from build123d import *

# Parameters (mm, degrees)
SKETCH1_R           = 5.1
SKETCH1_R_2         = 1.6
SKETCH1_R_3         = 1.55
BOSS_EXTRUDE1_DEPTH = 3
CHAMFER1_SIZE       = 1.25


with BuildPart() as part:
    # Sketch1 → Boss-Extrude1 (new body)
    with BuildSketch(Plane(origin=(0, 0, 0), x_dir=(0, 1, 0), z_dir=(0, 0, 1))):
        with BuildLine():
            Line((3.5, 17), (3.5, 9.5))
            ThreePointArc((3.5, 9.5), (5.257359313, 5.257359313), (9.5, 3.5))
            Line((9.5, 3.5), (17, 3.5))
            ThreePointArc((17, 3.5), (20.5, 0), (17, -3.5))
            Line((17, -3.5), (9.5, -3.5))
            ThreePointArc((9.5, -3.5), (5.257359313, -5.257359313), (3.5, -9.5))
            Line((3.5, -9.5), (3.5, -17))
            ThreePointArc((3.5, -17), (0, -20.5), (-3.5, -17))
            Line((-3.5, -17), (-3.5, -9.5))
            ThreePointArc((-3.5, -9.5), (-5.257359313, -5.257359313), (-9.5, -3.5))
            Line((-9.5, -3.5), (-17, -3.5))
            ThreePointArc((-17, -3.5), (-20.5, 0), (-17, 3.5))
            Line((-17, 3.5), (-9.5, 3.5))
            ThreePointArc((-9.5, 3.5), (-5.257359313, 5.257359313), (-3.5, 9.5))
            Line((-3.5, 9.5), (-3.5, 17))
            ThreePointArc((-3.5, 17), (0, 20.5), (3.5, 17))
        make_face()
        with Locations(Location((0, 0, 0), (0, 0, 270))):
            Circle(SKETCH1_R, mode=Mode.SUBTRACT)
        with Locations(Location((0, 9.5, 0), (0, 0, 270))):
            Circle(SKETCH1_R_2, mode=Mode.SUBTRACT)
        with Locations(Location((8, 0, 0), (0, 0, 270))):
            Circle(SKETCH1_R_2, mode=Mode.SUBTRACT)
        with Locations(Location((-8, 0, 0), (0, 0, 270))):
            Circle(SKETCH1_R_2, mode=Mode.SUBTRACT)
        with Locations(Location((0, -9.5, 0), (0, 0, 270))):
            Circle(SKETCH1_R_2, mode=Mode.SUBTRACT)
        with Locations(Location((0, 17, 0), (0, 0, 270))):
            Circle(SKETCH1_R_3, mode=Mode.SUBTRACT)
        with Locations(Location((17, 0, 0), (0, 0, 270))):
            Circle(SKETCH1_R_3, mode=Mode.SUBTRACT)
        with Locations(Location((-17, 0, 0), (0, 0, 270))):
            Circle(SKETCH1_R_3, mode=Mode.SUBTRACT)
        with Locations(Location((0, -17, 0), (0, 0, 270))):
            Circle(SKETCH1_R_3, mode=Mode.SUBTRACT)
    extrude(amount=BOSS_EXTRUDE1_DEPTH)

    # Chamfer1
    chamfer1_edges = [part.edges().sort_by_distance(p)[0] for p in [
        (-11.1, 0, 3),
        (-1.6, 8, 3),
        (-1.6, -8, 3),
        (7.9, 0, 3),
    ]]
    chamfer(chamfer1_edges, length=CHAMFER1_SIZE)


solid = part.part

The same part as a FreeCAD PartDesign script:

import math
import FreeCAD as App
import Part
import Sketcher
from FreeCAD import Vector


def edges_at(feature, points):
    """Names of the edges that pass closest to the given points."""
    edges = feature.Shape.Edges
    near = lambda p: min(range(len(edges)), key=lambda i: edges[i].distToShape(Part.Vertex(*p))[0])
    return sorted({f"Edge{near(p) + 1}" for p in points})

doc = App.newDocument("Part")
params = doc.addObject("Spreadsheet::Sheet", "Params")
for row, (alias, value) in enumerate([
    ("sketch1_radius", "6 mm"),
    ("sketch1_diameter", "3.1 mm"),
    ("sketch1_diameter2", "3.2 mm"),
    ("sketch1_diameter3", "10.2 mm"),
    ("sketch1_radius2", "3.5 mm"),
    ("pad1_length", "3 mm"),
    ("chamfer_size", "1.25 mm"),
], start=1):
    params.set(f"A{row}", alias)
    params.set(f"B{row}", "=" + value)
    params.setAlias(f"B{row}", alias)

body = doc.addObject("PartDesign::Body", "Body")

# Sketch on XY plane
sketch1 = body.newObject("Sketcher::SketchObject", "Sketch")
sketch1.AttachmentSupport = (doc.getObject("XY_Plane"), [""])
sketch1.MapMode = "FlatFace"
sketch1.addGeometry([
    Part.LineSegment(Vector(-9.5, 3.5, 0), Vector(-17, 3.5, 0)),  # 0
    Part.ArcOfCircle(Part.Circle(Vector(-17, 0, 0), Vector(0, 0, 1), 3.5), math.radians(90), math.radians(270)),  # 1
    Part.LineSegment(Vector(-17, -3.5, 0), Vector(-9.5, -3.5, 0)),  # 2
    Part.ArcOfCircle(Part.Circle(Vector(-9.5, -9.5, 0), Vector(0, 0, 1), 6), math.radians(0), math.radians(90)),  # 3
    Part.LineSegment(Vector(-3.5, -9.5, 0), Vector(-3.5, -17, 0)),  # 4
    Part.ArcOfCircle(Part.Circle(Vector(0, -17, 0), Vector(0, 0, 1), 3.5), math.radians(180), math.radians(360)),  # 5
    Part.LineSegment(Vector(3.5, -17, 0), Vector(3.5, -9.5, 0)),  # 6
    Part.ArcOfCircle(Part.Circle(Vector(9.5, -9.5, 0), Vector(0, 0, 1), 6), math.radians(90), math.radians(180)),  # 7
    Part.LineSegment(Vector(9.5, -3.5, 0), Vector(17, -3.5, 0)),  # 8
    Part.ArcOfCircle(Part.Circle(Vector(17, 0, 0), Vector(0, 0, 1), 3.5), math.radians(-90), math.radians(90)),  # 9
    Part.LineSegment(Vector(17, 3.5, 0), Vector(9.5, 3.5, 0)),  # 10
    Part.ArcOfCircle(Part.Circle(Vector(9.5, 9.5, 0), Vector(0, 0, 1), 6), math.radians(180), math.radians(270)),  # 11
    Part.LineSegment(Vector(3.5, 9.5, 0), Vector(3.5, 17, 0)),  # 12
    Part.ArcOfCircle(Part.Circle(Vector(0, 17, 0), Vector(0, 0, 1), 3.5), math.radians(0), math.radians(180)),  # 13
    Part.LineSegment(Vector(-3.5, 17, 0), Vector(-3.5, 9.5, 0)),  # 14
    Part.ArcOfCircle(Part.Circle(Vector(-9.5, 9.5, 0), Vector(0, 0, 1), 6), math.radians(-90), math.radians(0)),  # 15
    Part.Circle(Vector(17, 0, 0), Vector(0, 0, 1), 1.55),  # 16
    Part.Circle(Vector(9.5, 0, 0), Vector(0, 0, 1), 1.6),  # 17
    Part.Circle(Vector(0, 17, 0), Vector(0, 0, 1), 1.55),  # 18
    Part.Circle(Vector(0, 8, 0), Vector(0, 0, 1), 1.6),  # 19
    Part.Circle(Vector(0, 0, 0), Vector(0, 0, 1), 5.1),  # 20
    Part.Circle(Vector(0, -8, 0), Vector(0, 0, 1), 1.6),  # 21
    Part.Circle(Vector(0, -17, 0), Vector(0, 0, 1), 1.55),  # 22
    Part.Circle(Vector(-9.5, 0, 0), Vector(0, 0, 1), 1.6),  # 23
    Part.Circle(Vector(-17, 0, 0), Vector(0, 0, 1), 1.55),  # 24
], False)
sketch1.addConstraint([
    Sketcher.Constraint("Tangent", 0, 2, 1, 1),
    Sketcher.Constraint("Tangent", 1, 2, 2, 1),
    Sketcher.Constraint("Tangent", 2, 2, 3, 2),
    Sketcher.Constraint("Tangent", 3, 1, 4, 1),
    Sketcher.Constraint("Tangent", 4, 2, 5, 1),
    Sketcher.Constraint("Tangent", 5, 2, 6, 1),
    Sketcher.Constraint("Tangent", 6, 2, 7, 2),
    Sketcher.Constraint("Tangent", 7, 1, 8, 1),
    Sketcher.Constraint("Tangent", 8, 2, 9, 1),
    Sketcher.Constraint("Tangent", 9, 2, 10, 1),
    Sketcher.Constraint("Tangent", 10, 2, 11, 2),
    Sketcher.Constraint("Tangent", 11, 1, 12, 1),
    Sketcher.Constraint("Tangent", 12, 2, 13, 1),
    Sketcher.Constraint("Tangent", 13, 2, 14, 1),
    Sketcher.Constraint("Tangent", 14, 2, 15, 2),
    Sketcher.Constraint("Tangent", 15, 1, 0, 1),
    Sketcher.Constraint("Horizontal", 0),
    Sketcher.Constraint("Horizontal", 2),
    Sketcher.Constraint("Vertical", 4),
    Sketcher.Constraint("Vertical", 6),
    Sketcher.Constraint("Horizontal", 8),
    Sketcher.Constraint("Horizontal", 10),
    Sketcher.Constraint("Vertical", 12),
    Sketcher.Constraint("Vertical", 14),
    Sketcher.Constraint("Coincident", 20, 3, -1, 1),
    Sketcher.Constraint("Coincident", 16, 3, 9, 3),
    Sketcher.Constraint("Coincident", 18, 3, 13, 3),
    Sketcher.Constraint("Coincident", 22, 3, 5, 3),
    Sketcher.Constraint("Coincident", 24, 3, 1, 3),
    Sketcher.Constraint("Equal", 1, 5),
    Sketcher.Constraint("Equal", 3, 7),
    Sketcher.Constraint("Equal", 5, 9),
    Sketcher.Constraint("Equal", 7, 11),
    Sketcher.Constraint("Equal", 9, 13),
    Sketcher.Constraint("Equal", 11, 15),
    Sketcher.Constraint("Equal", 16, 18),
    Sketcher.Constraint("Equal", 17, 19),
    Sketcher.Constraint("Equal", 19, 21),
    Sketcher.Constraint("Equal", 18, 22),
    Sketcher.Constraint("Equal", 21, 23),
    Sketcher.Constraint("Equal", 22, 24),
    Sketcher.Constraint("Symmetric", 1, 3, 9, 3, -1, 1),
    Sketcher.Constraint("Symmetric", 5, 3, 13, 3, -1, 1),
    Sketcher.Constraint("Symmetric", 19, 3, 21, 3, -1, 1),
    Sketcher.Constraint("Symmetric", 17, 3, 23, 3, -1, 1),
    Sketcher.Constraint("Symmetric", 3, 3, 7, 3, -2),
    Sketcher.Constraint("PointOnObject", 17, 3, -1),
    Sketcher.Constraint("PointOnObject", 19, 3, -2),
    Sketcher.Constraint("Vertical", 11, 3, 17, 3),
    Sketcher.Constraint("Equal", 10, 4),
    Sketcher.Constraint("Radius", 3, 6.0),
    Sketcher.Constraint("Diameter", 16, 3.1),
    Sketcher.Constraint("Diameter", 17, 3.2),
    Sketcher.Constraint("Diameter", 20, 10.2),
    Sketcher.Constraint("Radius", 1, 3.5),
    Sketcher.Constraint("DistanceX", 0, 2, 0, 1, 7.5),
    Sketcher.Constraint("DistanceY", -1, 1, 19, 3, 8.0),
])
sketch1.setExpression("Constraints[50]", "Params.sketch1_radius")
sketch1.setExpression("Constraints[51]", "Params.sketch1_diameter")
sketch1.setExpression("Constraints[52]", "Params.sketch1_diameter2")
sketch1.setExpression("Constraints[53]", "Params.sketch1_diameter3")
sketch1.setExpression("Constraints[54]", "Params.sketch1_radius2")
pad1 = body.newObject("PartDesign::Pad", "Pad")
pad1.Profile = sketch1
pad1.setExpression("Length", "Params.pad1_length")
doc.recompute()

chamfer = body.newObject("PartDesign::Chamfer", "Chamfer")
chamfer.Base = (pad1, edges_at(pad1, [
    (-11.1, 0, 3),
    (-1.6, 8, 3),
    (-1.6, -8, 3),
    (7.9, 0, 3),
]))
chamfer.setExpression("Size", "Params.chamfer_size")

doc.recompute()
